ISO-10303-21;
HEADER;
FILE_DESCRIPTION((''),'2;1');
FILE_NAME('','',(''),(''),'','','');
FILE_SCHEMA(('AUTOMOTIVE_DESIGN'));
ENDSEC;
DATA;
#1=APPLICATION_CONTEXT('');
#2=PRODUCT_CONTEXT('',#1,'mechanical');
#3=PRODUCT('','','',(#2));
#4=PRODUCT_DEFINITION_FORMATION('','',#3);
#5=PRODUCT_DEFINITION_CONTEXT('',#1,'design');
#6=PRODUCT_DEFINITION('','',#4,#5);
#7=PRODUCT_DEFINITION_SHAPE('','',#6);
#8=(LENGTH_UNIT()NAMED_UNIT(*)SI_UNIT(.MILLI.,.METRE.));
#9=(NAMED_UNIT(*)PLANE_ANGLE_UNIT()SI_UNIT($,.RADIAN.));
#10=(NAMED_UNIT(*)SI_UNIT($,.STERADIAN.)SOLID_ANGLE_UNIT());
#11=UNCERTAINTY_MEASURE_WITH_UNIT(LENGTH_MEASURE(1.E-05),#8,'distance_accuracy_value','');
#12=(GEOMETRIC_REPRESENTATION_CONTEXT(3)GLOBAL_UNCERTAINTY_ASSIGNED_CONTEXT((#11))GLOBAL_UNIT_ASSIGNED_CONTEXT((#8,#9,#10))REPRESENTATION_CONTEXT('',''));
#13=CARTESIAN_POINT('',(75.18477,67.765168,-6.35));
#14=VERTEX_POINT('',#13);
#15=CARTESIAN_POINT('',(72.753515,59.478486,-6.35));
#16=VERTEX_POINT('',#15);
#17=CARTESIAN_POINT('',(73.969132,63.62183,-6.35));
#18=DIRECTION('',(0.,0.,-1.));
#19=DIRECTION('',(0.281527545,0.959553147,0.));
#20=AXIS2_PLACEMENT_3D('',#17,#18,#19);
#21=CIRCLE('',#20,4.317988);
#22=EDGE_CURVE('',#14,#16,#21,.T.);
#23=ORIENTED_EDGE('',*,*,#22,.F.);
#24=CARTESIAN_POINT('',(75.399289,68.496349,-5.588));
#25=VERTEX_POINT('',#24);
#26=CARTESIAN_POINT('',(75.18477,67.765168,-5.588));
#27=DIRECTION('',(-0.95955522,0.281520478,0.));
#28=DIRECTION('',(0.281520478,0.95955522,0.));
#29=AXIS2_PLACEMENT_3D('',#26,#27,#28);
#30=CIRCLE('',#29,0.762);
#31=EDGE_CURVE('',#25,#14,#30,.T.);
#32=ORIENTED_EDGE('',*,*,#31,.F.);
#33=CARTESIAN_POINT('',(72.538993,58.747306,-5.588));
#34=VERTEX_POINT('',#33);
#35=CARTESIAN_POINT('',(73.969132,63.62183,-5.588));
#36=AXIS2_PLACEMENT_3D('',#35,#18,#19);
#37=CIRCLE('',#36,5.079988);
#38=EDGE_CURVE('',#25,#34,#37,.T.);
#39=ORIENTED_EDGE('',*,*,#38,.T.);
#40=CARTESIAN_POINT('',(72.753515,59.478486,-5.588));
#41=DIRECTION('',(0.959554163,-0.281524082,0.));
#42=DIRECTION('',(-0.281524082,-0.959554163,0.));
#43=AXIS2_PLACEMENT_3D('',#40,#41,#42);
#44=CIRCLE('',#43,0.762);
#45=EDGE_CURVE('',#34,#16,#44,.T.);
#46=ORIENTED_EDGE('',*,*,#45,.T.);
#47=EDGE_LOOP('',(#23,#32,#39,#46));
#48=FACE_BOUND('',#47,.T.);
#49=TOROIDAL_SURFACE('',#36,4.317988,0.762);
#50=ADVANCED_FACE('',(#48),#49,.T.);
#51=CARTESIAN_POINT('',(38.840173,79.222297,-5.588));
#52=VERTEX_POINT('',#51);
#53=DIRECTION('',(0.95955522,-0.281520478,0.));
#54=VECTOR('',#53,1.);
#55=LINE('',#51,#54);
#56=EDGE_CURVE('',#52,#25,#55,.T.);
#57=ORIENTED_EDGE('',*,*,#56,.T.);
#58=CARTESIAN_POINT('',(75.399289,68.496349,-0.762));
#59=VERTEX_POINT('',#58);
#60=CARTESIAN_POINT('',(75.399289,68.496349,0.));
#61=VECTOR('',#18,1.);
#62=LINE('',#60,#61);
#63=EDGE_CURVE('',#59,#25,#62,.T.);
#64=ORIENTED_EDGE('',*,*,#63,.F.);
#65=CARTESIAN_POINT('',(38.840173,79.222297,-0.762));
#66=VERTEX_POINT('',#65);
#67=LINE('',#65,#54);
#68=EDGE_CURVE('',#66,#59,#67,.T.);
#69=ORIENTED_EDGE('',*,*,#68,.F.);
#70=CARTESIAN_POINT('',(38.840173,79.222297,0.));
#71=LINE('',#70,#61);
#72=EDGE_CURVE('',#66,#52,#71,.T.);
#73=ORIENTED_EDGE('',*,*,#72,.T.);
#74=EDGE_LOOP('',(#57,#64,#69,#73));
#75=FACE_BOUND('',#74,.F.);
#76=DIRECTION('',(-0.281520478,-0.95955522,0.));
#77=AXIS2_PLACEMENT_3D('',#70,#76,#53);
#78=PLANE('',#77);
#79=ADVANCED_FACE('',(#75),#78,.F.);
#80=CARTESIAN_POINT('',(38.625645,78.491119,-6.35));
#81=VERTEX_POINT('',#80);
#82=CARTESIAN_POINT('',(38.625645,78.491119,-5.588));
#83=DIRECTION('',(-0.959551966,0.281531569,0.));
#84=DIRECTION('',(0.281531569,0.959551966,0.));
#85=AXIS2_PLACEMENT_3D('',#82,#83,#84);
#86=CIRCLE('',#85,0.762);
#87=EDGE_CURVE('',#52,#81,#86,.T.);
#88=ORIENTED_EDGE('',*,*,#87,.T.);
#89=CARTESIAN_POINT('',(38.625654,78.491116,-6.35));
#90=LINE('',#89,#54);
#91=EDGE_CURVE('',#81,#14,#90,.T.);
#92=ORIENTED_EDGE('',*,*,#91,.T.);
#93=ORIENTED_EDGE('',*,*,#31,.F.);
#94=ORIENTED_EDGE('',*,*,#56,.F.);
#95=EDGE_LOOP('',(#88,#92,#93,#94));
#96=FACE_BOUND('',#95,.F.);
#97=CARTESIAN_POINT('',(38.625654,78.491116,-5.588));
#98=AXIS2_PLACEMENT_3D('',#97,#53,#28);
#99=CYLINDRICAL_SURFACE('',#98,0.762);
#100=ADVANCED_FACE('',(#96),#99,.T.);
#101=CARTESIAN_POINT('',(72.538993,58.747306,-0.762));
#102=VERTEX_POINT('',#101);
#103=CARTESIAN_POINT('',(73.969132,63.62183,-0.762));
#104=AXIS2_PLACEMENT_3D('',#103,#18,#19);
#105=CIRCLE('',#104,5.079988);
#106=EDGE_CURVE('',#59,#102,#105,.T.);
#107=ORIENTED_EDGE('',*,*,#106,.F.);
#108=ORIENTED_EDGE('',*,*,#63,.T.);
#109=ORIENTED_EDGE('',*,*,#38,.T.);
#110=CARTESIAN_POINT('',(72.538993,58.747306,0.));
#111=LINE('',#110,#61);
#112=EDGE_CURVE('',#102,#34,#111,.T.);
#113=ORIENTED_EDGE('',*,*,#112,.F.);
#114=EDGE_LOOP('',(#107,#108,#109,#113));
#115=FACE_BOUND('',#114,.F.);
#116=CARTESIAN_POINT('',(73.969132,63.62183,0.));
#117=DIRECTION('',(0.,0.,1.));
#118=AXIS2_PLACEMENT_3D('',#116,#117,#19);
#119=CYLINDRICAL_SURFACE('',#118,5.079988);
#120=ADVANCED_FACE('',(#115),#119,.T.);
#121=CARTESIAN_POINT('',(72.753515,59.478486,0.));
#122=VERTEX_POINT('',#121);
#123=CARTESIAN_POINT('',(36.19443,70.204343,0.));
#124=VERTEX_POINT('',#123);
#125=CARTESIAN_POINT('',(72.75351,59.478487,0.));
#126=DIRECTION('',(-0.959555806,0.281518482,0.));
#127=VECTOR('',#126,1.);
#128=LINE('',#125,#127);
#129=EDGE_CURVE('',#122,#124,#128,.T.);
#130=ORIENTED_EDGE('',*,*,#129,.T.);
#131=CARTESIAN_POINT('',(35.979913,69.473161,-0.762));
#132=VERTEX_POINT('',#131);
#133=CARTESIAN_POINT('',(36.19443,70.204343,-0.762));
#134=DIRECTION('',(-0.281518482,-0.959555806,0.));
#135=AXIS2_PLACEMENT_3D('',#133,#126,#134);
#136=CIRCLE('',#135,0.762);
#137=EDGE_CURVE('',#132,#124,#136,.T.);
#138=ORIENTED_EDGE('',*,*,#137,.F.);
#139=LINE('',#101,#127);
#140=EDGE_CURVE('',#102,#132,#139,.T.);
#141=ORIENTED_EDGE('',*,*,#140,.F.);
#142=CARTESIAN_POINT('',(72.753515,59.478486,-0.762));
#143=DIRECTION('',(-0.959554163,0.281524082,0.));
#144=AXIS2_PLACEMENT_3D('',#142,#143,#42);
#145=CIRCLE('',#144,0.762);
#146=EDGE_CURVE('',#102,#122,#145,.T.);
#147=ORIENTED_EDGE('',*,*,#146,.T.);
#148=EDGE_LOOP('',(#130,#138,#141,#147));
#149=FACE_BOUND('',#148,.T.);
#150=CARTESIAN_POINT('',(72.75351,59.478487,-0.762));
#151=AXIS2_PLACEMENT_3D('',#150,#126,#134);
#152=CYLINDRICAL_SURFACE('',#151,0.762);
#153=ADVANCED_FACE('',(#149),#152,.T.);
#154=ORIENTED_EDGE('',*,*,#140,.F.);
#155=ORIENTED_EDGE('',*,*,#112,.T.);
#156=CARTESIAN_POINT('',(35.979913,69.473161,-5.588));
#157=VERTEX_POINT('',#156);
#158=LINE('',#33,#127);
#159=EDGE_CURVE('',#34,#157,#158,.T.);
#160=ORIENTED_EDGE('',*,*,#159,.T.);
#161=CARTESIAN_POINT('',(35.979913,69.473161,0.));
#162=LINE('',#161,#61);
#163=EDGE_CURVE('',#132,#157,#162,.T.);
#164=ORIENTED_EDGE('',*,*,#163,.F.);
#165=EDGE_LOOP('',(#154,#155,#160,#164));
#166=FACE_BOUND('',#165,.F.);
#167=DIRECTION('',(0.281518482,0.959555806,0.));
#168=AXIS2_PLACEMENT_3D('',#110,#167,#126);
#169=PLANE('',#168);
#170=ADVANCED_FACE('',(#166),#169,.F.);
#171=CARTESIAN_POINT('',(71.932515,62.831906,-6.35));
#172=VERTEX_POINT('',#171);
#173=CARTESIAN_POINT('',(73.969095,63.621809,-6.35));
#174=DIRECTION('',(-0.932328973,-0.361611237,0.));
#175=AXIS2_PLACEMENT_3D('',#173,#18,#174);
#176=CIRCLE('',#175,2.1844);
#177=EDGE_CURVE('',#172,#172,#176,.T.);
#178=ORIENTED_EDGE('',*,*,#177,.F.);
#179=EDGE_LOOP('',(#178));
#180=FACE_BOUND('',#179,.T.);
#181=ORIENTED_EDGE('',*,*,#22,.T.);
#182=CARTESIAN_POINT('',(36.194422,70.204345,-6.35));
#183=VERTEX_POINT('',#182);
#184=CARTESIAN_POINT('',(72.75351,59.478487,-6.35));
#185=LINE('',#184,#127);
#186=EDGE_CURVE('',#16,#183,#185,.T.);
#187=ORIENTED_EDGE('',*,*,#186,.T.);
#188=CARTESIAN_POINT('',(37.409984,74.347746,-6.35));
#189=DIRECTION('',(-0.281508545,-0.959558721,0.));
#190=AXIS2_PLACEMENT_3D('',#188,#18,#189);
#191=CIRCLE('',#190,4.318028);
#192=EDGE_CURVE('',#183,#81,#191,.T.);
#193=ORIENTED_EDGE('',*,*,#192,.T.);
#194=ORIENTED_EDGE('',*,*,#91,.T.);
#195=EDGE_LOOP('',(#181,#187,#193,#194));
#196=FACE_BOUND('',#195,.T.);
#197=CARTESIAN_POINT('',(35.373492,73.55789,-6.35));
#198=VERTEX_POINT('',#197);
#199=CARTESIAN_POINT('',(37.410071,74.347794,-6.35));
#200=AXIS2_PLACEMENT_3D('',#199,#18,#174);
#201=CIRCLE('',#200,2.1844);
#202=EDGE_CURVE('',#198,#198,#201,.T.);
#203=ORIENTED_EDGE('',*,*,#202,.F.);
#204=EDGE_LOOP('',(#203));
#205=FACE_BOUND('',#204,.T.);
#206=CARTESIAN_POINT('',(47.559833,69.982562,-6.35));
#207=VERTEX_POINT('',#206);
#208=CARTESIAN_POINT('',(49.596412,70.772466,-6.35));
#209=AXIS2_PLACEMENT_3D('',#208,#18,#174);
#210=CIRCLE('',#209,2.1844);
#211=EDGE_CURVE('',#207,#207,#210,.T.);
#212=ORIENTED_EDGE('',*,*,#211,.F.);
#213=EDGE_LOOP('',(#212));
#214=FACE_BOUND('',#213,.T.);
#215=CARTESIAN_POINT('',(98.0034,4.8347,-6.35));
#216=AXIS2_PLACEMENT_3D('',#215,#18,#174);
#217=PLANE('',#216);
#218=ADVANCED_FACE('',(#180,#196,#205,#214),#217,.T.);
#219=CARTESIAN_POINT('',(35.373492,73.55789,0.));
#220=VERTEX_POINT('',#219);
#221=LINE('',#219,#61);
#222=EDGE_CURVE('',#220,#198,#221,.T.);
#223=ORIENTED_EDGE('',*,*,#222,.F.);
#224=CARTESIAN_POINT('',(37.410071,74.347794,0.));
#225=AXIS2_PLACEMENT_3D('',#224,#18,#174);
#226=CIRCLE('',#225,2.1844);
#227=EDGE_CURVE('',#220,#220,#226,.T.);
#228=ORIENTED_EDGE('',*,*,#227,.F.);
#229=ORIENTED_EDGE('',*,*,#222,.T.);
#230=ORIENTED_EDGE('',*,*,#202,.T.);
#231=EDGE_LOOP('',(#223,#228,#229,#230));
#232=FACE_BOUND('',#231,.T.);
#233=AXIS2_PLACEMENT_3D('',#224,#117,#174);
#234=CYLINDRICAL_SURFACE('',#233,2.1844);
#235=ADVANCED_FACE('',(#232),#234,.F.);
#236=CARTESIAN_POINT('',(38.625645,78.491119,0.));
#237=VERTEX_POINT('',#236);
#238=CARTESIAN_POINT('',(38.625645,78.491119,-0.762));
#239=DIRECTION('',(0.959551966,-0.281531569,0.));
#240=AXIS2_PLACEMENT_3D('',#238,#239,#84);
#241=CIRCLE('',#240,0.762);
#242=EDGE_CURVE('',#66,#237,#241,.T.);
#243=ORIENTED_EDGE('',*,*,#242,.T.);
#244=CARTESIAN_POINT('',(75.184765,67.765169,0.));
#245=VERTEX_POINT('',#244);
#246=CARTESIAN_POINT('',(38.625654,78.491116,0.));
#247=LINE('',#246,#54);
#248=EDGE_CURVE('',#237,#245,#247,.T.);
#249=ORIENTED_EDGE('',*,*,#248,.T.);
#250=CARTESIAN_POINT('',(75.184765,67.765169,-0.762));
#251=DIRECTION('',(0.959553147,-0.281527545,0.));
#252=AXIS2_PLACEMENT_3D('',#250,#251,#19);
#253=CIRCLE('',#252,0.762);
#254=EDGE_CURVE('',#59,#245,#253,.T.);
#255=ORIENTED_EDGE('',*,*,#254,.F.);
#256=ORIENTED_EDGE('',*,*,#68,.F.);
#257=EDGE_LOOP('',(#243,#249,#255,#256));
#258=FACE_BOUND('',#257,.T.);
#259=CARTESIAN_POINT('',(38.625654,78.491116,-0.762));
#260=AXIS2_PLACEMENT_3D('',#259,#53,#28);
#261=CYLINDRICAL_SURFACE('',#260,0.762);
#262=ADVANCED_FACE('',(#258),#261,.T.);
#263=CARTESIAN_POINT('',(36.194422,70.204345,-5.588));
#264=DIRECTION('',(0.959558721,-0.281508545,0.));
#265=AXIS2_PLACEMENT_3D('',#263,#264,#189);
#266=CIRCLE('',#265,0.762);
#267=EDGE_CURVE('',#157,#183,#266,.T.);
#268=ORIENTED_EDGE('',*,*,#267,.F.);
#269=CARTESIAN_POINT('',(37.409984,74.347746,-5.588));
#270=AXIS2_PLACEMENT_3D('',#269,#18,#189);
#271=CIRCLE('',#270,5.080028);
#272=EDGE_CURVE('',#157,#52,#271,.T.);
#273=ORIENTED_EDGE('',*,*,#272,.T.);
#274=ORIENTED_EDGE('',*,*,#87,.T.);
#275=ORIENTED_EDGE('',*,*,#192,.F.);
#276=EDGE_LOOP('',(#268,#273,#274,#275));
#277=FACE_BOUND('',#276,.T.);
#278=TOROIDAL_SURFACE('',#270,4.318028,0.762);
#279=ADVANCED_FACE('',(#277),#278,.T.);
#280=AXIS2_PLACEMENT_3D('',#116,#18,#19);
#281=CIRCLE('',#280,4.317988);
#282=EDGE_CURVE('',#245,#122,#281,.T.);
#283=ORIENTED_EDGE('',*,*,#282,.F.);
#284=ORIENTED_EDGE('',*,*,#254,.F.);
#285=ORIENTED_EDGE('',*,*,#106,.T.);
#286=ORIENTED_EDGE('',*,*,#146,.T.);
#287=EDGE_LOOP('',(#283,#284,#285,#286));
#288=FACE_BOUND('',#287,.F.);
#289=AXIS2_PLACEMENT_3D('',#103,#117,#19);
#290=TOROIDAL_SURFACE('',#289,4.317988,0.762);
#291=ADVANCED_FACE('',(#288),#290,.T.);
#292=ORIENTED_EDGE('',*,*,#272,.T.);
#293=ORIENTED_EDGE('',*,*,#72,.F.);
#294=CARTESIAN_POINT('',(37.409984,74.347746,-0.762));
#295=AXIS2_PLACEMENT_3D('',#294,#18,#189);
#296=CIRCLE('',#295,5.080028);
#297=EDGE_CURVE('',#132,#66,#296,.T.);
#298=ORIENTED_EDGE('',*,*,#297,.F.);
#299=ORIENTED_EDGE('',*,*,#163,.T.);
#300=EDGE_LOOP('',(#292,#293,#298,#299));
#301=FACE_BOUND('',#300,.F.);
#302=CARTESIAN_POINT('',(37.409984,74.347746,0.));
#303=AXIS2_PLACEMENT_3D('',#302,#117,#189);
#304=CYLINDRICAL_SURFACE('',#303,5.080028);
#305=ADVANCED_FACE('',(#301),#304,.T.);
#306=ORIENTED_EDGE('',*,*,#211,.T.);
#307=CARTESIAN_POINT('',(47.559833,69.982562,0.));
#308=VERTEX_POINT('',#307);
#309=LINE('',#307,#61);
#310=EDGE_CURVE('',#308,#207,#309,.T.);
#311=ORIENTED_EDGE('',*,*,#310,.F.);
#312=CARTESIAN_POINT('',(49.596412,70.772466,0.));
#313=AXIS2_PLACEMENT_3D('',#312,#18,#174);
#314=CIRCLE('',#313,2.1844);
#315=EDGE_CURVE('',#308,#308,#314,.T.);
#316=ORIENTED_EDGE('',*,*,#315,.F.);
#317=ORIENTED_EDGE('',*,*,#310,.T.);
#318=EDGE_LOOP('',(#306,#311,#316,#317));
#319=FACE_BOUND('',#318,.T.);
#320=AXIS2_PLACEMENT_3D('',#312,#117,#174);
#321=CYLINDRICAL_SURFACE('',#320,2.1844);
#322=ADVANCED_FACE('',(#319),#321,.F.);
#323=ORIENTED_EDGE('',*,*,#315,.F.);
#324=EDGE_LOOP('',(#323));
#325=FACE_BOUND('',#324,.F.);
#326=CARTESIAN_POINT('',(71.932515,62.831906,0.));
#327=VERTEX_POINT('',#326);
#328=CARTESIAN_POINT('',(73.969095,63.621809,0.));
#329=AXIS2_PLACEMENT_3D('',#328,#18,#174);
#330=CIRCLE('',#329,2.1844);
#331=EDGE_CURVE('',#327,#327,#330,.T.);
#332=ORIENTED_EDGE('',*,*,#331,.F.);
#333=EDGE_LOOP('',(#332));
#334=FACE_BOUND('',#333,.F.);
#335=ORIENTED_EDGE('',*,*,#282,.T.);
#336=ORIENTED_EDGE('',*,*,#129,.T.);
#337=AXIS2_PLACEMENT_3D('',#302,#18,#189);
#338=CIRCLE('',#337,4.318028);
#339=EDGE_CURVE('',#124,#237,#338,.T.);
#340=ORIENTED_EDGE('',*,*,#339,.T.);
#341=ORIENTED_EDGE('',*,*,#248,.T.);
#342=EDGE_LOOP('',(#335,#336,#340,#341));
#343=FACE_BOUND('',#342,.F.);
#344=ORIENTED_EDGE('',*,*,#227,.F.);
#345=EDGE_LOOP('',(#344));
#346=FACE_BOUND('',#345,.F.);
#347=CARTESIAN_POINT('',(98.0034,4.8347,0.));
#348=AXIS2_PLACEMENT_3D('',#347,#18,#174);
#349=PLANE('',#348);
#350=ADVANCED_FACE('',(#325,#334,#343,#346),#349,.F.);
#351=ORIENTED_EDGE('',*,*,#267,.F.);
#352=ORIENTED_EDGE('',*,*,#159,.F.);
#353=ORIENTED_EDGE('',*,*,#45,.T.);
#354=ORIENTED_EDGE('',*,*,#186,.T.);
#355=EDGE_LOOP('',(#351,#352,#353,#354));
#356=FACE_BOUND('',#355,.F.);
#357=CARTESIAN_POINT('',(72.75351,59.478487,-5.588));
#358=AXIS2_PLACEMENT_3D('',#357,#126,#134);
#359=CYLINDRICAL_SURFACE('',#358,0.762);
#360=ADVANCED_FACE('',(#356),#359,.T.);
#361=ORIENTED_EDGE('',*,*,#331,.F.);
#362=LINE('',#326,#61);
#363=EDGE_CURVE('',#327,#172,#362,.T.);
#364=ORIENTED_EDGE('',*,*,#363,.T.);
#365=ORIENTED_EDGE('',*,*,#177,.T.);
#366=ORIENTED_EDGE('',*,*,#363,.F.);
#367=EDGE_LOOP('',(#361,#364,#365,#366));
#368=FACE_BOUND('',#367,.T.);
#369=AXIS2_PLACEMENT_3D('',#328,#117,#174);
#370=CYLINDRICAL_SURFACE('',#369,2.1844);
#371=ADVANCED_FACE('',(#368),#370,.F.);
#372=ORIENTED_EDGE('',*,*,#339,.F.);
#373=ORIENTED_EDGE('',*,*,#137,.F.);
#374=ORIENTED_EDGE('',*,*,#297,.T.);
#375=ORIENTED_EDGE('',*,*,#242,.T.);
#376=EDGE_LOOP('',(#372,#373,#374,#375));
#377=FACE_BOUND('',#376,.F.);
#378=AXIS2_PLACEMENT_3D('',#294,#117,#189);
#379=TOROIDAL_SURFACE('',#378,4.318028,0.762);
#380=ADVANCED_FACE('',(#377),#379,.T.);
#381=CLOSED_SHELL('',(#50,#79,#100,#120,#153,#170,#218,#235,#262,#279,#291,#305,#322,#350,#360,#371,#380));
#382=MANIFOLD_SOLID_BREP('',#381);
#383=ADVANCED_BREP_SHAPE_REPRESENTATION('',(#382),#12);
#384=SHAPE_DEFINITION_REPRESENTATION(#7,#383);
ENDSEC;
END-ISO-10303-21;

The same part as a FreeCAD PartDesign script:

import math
import FreeCAD as App
import Part
import Sketcher
Q = App.Units.Quantity


def edges_at(feature, points):
    """Names of the edges that pass closest to the given points."""
    edges = feature.Shape.Edges
    near = lambda p: min(range(len(edges)), key=lambda i: edges[i].distToShape(Part.Vertex(*p))[0])
    return sorted({f"Edge{near(p) + 1}" for p in points})

doc = App.newDocument("Part")
body = doc.addObject("PartDesign::Body", "Body")

# Sketch on XY plane
sketch1 = body.newObject("Sketcher::SketchObject", "Sketch")
sketch1.AttachmentSupport = (doc.getObject("XY_Plane"), [""])
sketch1.MapMode = "FlatFace"
sketch1.addGeometry(Part.ArcOfCircle(Part.Circle(App.Vector(74, 63.6, 0), App.Vector(0, 0, 1), 5.1), math.radians(-106), math.radians(74)), False)
sketch1.addGeometry(Part.LineSegment(App.Vector(72.5, 58.7, 0), App.Vector(36, 69.5, 0)), False)
sketch1.addGeometry(Part.ArcOfCircle(Part.Circle(App.Vector(37.4, 74.3, 0), App.Vector(0, 0, 1), 5.1), math.radians(74), math.radians(254)), False)
sketch1.addGeometry(Part.LineSegment(App.Vector(38.8, 79.2, 0), App.Vector(75.4, 68.5, 0)), False)
sketch1.addGeometry(Part.Circle(App.Vector(74, 63.6, 0), App.Vector(0, 0, 1), 2.2), False)
sketch1.addGeometry(Part.Circle(App.Vector(49.6, 70.8, 0), App.Vector(0, 0, 1), 2.2), False)
sketch1.addGeometry(Part.Circle(App.Vector(37.4, 74.3, 0), App.Vector(0, 0, 1), 2.2), False)
sketch1.addConstraint(Sketcher.Constraint("Tangent", 0, 1, 1, 1))
sketch1.addConstraint(Sketcher.Constraint("Tangent", 1, 2, 2, 2))
sketch1.addConstraint(Sketcher.Constraint("Tangent", 2, 1, 3, 1))
sketch1.addConstraint(Sketcher.Constraint("Tangent", 3, 2, 0, 2))
sketch1.addConstraint(Sketcher.Constraint("Coincident", 4, 3, 0, 3))
sketch1.addConstraint(Sketcher.Constraint("Coincident", 6, 3, 2, 3))
sketch1.addConstraint(Sketcher.Constraint("Equal", 0, 2))
sketch1.addConstraint(Sketcher.Constraint("Equal", 4, 5))
sketch1.addConstraint(Sketcher.Constraint("Equal", 5, 6))
sketch1.addConstraint(Sketcher.Constraint("Radius", 0, Q("0.2 in")))
sketch1.addConstraint(Sketcher.Constraint("Diameter", 4, Q("0.172 in")))
sketch1.addConstraint(Sketcher.Constraint("Distance", 1, Q("1.5 in")))
sketch1.addConstraint(Sketcher.Constraint("Angle", 1, Q("163.6491 deg")))
sketch1.addConstraint(Sketcher.Constraint("DistanceY", -1, 1, 2, 1, Q("3.119 in")))
sketch1.addConstraint(Sketcher.Constraint("DistanceY", 3, 2, 5, 3, Q("0.0896 in")))
sketch1.addConstraint(Sketcher.Constraint("DistanceX", -1, 1, 0, 3, 73.969))
sketch1.addConstraint(Sketcher.Constraint("DistanceX", -1, 1, 5, 3, 49.5964))
pad1 = body.newObject("PartDesign::Pad", "Pad")
pad1.Profile = sketch1
pad1.Length = Q("0.25 in")
pad1.Reversed = True
doc.recompute()

fillet = body.newObject("PartDesign::Fillet", "Fillet")
fillet.Base = (pad1, edges_at(pad1, [
    (32.537, 75.779, -6.35),
    (57.121, 73.86, -6.35),
    (78.845, 62.192, -6.35),
    (54.261, 64.111, -6.35),
    (78.845, 62.192, 0),
    (54.261, 64.111, 0),
    (32.537, 75.779, 0),
    (57.121, 73.86, 0),
]))
fillet.Radius = Q("0.03 in")

doc.recompute()
